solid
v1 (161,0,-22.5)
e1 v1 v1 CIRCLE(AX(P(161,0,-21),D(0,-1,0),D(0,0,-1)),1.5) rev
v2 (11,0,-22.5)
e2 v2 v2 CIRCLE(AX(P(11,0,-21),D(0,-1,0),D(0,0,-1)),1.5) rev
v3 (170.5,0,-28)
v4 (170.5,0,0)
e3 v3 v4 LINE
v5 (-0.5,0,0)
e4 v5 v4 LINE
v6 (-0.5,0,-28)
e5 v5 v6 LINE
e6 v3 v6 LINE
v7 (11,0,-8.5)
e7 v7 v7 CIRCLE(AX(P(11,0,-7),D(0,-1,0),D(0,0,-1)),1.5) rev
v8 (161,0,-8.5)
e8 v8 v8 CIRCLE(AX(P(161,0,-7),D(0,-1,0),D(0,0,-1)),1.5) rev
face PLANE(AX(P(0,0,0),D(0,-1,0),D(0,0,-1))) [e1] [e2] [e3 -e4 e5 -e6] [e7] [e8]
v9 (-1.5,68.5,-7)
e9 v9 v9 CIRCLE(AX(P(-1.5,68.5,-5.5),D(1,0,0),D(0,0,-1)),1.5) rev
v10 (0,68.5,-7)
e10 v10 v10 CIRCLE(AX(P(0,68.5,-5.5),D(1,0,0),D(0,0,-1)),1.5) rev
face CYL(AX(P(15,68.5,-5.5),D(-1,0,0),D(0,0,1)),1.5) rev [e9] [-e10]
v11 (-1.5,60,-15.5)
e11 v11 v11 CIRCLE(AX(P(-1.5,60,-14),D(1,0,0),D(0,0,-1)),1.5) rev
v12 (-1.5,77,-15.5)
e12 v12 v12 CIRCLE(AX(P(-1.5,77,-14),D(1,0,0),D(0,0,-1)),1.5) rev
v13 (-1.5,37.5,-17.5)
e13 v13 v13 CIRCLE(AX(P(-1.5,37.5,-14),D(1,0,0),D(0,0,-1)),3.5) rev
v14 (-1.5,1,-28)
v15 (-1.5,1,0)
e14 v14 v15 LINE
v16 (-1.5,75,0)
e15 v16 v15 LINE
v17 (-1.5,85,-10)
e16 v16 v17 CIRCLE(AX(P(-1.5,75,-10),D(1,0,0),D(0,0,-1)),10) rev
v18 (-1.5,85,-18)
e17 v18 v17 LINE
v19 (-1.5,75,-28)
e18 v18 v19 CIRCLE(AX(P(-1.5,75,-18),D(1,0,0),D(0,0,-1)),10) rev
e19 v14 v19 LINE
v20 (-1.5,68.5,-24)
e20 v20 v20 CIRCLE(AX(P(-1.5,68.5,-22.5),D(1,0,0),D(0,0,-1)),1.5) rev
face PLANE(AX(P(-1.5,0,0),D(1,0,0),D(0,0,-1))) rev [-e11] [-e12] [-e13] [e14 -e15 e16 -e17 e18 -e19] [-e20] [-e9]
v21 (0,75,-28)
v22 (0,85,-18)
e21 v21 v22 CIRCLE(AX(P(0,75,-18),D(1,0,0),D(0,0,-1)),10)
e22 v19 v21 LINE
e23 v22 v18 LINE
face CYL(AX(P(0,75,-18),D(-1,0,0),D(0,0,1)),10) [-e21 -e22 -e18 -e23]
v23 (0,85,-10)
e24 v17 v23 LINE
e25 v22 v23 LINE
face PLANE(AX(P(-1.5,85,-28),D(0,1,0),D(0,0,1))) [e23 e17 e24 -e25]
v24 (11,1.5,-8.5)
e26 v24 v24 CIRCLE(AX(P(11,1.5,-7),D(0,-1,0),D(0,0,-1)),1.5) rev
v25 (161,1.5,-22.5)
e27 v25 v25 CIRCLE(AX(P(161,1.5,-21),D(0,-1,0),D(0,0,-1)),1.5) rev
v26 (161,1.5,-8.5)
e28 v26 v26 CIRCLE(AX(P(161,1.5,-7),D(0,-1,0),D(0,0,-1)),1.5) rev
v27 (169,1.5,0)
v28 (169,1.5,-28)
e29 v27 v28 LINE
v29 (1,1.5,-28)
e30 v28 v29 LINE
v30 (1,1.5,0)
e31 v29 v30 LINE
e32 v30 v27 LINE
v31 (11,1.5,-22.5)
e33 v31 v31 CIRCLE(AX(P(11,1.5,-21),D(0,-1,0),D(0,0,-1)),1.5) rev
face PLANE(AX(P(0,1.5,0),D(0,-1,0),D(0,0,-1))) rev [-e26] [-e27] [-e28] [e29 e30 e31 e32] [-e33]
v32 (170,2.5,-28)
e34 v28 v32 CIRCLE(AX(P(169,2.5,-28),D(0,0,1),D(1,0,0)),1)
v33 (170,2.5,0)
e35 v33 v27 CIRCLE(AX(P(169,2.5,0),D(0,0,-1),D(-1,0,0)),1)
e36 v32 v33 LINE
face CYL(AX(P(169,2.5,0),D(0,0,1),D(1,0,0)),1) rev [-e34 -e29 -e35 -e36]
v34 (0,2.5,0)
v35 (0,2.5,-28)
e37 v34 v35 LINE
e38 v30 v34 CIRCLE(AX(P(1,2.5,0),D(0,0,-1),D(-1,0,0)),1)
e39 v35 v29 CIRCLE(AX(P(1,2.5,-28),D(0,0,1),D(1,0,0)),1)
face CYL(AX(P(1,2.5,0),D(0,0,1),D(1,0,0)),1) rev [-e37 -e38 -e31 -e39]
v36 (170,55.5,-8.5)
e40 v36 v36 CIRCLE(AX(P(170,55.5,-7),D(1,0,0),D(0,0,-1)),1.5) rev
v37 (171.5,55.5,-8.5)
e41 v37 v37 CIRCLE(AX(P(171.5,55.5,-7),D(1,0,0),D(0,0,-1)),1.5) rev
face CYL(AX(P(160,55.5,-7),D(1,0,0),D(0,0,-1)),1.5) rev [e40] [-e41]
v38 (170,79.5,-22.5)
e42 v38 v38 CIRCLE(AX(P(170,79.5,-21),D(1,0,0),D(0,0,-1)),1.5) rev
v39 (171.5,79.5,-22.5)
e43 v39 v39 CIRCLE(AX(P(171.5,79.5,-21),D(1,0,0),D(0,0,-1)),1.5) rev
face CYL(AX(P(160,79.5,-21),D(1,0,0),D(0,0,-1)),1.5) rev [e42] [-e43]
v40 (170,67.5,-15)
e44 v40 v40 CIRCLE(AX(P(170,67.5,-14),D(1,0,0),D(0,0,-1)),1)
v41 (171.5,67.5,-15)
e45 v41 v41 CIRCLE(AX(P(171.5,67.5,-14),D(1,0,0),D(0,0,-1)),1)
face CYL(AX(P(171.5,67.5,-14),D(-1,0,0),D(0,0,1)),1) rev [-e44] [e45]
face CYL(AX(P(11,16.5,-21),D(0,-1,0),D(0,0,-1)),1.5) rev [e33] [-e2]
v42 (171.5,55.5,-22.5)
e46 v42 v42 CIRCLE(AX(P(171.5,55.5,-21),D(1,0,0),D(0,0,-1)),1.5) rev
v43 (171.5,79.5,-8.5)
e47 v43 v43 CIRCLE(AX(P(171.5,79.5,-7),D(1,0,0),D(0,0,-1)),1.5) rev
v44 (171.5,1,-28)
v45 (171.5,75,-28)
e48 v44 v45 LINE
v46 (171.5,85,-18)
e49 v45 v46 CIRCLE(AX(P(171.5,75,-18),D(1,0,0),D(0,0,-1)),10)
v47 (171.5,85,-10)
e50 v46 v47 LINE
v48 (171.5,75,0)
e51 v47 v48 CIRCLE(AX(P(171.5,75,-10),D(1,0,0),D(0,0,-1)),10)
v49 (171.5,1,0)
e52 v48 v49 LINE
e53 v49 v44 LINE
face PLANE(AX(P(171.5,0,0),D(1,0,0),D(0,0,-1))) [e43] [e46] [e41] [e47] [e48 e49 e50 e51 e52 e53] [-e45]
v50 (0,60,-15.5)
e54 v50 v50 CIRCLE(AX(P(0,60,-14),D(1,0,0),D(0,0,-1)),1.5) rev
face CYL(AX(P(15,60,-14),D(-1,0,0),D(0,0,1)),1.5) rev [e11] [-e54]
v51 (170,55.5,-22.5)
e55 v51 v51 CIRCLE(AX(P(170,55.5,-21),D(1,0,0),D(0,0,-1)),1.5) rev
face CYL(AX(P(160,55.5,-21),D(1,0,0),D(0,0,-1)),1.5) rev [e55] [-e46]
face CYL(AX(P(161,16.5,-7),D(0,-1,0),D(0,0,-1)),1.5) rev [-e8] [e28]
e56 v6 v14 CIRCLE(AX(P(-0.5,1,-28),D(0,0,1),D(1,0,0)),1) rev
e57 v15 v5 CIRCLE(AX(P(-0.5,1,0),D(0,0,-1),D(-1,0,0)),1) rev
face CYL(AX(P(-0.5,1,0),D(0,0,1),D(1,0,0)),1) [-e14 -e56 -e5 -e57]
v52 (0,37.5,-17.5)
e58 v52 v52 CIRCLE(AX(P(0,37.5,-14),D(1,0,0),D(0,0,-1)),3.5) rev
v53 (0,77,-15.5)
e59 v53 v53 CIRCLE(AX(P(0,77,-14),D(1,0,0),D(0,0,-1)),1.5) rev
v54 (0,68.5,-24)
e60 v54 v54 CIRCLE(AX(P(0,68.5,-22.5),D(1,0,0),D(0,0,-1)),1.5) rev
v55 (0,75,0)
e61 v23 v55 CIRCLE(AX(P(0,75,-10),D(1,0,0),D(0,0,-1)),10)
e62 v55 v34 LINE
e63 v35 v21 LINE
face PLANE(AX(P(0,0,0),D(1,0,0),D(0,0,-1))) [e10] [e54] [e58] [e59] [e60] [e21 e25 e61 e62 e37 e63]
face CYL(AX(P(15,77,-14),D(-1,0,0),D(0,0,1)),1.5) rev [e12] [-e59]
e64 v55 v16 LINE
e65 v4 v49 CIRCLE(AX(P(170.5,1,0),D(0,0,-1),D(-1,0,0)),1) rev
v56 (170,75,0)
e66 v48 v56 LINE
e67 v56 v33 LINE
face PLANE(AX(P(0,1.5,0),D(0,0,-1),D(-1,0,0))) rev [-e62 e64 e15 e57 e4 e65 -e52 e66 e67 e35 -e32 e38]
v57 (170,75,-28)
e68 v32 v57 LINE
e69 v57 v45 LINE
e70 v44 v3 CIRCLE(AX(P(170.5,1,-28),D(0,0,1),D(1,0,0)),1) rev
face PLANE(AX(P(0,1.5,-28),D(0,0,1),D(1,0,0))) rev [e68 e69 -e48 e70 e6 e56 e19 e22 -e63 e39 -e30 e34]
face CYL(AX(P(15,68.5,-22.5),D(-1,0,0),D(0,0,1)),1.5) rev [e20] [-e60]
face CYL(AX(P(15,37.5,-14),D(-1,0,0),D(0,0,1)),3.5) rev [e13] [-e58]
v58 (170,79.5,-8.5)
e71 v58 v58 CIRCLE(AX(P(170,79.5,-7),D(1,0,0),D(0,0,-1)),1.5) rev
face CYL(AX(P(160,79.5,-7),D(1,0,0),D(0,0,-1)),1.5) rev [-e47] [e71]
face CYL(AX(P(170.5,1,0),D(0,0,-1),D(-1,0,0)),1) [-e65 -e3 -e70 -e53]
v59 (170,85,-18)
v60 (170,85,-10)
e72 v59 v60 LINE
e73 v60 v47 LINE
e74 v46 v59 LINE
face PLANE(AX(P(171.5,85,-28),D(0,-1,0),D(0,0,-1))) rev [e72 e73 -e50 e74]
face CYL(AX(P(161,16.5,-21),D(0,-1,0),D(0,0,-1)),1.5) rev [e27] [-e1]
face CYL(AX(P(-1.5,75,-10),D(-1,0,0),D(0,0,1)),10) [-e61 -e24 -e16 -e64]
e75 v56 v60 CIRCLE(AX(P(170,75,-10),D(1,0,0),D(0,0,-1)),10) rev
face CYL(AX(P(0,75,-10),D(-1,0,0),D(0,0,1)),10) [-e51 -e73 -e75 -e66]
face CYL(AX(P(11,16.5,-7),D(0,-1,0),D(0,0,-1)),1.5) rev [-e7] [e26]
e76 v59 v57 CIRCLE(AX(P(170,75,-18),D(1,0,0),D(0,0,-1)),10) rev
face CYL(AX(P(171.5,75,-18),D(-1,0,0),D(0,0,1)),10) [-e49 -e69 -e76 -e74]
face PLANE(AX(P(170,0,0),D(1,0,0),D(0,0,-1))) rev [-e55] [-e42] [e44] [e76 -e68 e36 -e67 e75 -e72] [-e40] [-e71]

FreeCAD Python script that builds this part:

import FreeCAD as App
import Part
import Sketcher
from FreeCAD import Vector


def edges_at(feature, points):
    """Names of the edges that pass closest to the given points."""
    edges = feature.Shape.Edges
    near = lambda p: min(range(len(edges)), key=lambda i: edges[i].distToShape(Part.Vertex(*p))[0])
    return sorted({f"Edge{near(p) + 1}" for p in points})


def add_polygon(sketch, points):
    """Adds a closed chain of lines whose ends are joined by coincident constraints."""
    first, n = sketch.GeometryCount, len(points)
    for a, b in zip(points, points[1:] + points[:1]):
        sketch.addGeometry(Part.LineSegment(App.Vector(*a, 0), App.Vector(*b, 0)), False)
    for i in range(n):
        sketch.addConstraint(Sketcher.Constraint("Coincident", first + i, 2, first + (i + 1) % n, 1))

doc = App.newDocument("Part")
body = doc.addObject("PartDesign::Body", "Body")

sketch1 = doc.addObject("Sketcher::SketchObject", "Sketch")
body.addObject(sketch1)
sketch1.AttachmentSupport = (doc.XZ_Plane, [""])
sketch1.MapMode = "FlatFace"
add_polygon(sketch1, [(0, -28), (0, 0), (170, 0), (170, -28)])
sketch1.addConstraint([
    Sketcher.Constraint("Vertical", 0),
    Sketcher.Constraint("Horizontal", 1),
    Sketcher.Constraint("Vertical", 2),
    Sketcher.Constraint("Horizontal", 3),
    Sketcher.Constraint("Coincident", 0, 2, -1, 1),
    Sketcher.Constraint("DistanceX", 1, 1, 1, 2, 170.0),
    Sketcher.Constraint("DistanceY", 0, 1, 0, 2, 28.0),
])
pad1 = doc.addObject("PartDesign::Pad", "Pad")
body.addObject(pad1)
pad1.Profile = sketch1
pad1.Length = 1.5
pad1.Reversed = True

sketch2 = doc.addObject("Sketcher::SketchObject", "Sketch001")
body.addObject(sketch2)
sketch2.AttachmentSupport = (doc.YZ_Plane, [""])
sketch2.MapMode = "FlatFace"
add_polygon(sketch2, [(85, 0), (0, 0), (0, -28), (85, -28)])
sketch2.addConstraint([
    Sketcher.Constraint("Horizontal", 0),
    Sketcher.Constraint("Vertical", 1),
    Sketcher.Constraint("Horizontal", 2),
    Sketcher.Constraint("Vertical", 3),
    Sketcher.Constraint("Coincident", 0, 2, -1, 1),
    Sketcher.Constraint("DistanceX", 0, 2, 0, 1, 85.0),
    Sketcher.Constraint("DistanceY", 1, 2, 1, 1, 28.0),
])
pad2 = doc.addObject("PartDesign::Pad", "Pad001")
body.addObject(pad2)
pad2.Profile = sketch2
pad2.Length = 1.5
pad2.Reversed = True
doc.recompute()

fillet = doc.addObject("PartDesign::Fillet", "Fillet")
body.addObject(fillet)
fillet.Base = (pad2, edges_at(pad2, [(-0.75, 85, -28), (-0.75, 85, 0)]))
fillet.Radius = 10
doc.recompute()

fillet2 = doc.addObject("PartDesign::Fillet", "Fillet001")
body.addObject(fillet2)
fillet2.Base = (fillet, edges_at(fillet, [(-1.5, 0, -14)]))
fillet2.Radius = 1
doc.recompute()

fillet3 = doc.addObject("PartDesign::Fillet", "Fillet002")
body.addObject(fillet3)
fillet3.Base = (fillet2, edges_at(fillet2, [(0, 1.5, -14)]))
fillet3.Radius = 1

sketch3 = doc.addObject("Sketcher::SketchObject", "Sketch002")
body.addObject(sketch3)
sketch3.AttachmentSupport = (doc.YZ_Plane, [""])
sketch3.MapMode = "FlatFace"
sketch3.addGeometry([
    Part.Circle(Vector(77, -14, 0), Vector(0, 0, 1), 1.5),
    Part.Circle(Vector(60, -14, 0), Vector(0, 0, 1), 1.5),
    Part.Circle(Vector(68.5, -22.5, 0), Vector(0, 0, 1), 1.5),
    Part.Circle(Vector(68.5, -5.5, 0), Vector(0, 0, 1), 1.5),
], False)
sketch3.addConstraint([
    Sketcher.Constraint("Equal", 0, 1),
    Sketcher.Constraint("Equal", 1, 2),
    Sketcher.Constraint("Equal", 2, 3),
    Sketcher.Constraint("Horizontal", 0, 3, 1, 3),
    Sketcher.Constraint("Vertical", 2, 3, 3, 3),
    Sketcher.Constraint("Diameter", 0, 3.0),
    Sketcher.Constraint("DistanceX", -1, 1, 0, 3, 77.0),
    Sketcher.Constraint("DistanceY", 0, 3, -1, 1, 14.0),
    Sketcher.Constraint("DistanceX", -1, 1, 1, 3, 60.0),
    Sketcher.Constraint("DistanceY", 2, 3, 3, 3, 17.0),
    Sketcher.Constraint("DistanceX", -1, 1, 2, 3, 68.5),
    Sketcher.Constraint("DistanceY", 2, 3, -1, 1, 22.5),
])
pocket1 = doc.addObject("PartDesign::Pocket", "Pocket")
body.addObject(pocket1)
pocket1.Profile = sketch3
pocket1.Type = "ThroughAll"
pocket1.Midplane = True

sketch4 = doc.addObject("Sketcher::SketchObject", "Sketch003")
body.addObject(sketch4)
sketch4.AttachmentSupport = (doc.YZ_Plane, [""])
sketch4.MapMode = "FlatFace"
sketch4.addGeometry(Part.Circle(Vector(37.5, -14, 0), Vector(0, 0, 1), 3.5), False)
sketch4.addConstraint([
    Sketcher.Constraint("Diameter", 0, 7.0),
    Sketcher.Constraint("DistanceY", 0, 3, -1, 1, 14.0),
    Sketcher.Constraint("DistanceX", -1, 1, 0, 3, 37.5),
])
pocket2 = doc.addObject("PartDesign::Pocket", "Pocket001")
body.addObject(pocket2)
pocket2.Profile = sketch4
pocket2.Type = "ThroughAll"
pocket2.Midplane = True

sketch5 = doc.addObject("Sketcher::SketchObject", "Sketch004")
body.addObject(sketch5)
sketch5.AttachmentSupport = (doc.XZ_Plane, [""])
sketch5.MapMode = "FlatFace"
sketch5.AttachmentOffset = App.Placement(Vector(0, 0, -1.5), App.Rotation())
sketch5.addGeometry([
    Part.Circle(Vector(161, -7, 0), Vector(0, 0, 1), 1.5),
    Part.Circle(Vector(11, -21, 0), Vector(0, 0, 1), 1.5),
    Part.Circle(Vector(11, -7, 0), Vector(0, 0, 1), 1.5),
    Part.Circle(Vector(161, -21, 0), Vector(0, 0, 1), 1.5),
], False)
sketch5.addConstraint([
    Sketcher.Constraint("Equal", 0, 1),
    Sketcher.Constraint("Equal", 1, 2),
    Sketcher.Constraint("Equal", 2, 3),
    Sketcher.Constraint("Horizontal", 0, 3, 2, 3),
    Sketcher.Constraint("Horizontal", 1, 3, 3, 3),
    Sketcher.Constraint("Vertical", 1, 3, 2, 3),
    Sketcher.Constraint("Vertical", 0, 3, 3, 3),
    Sketcher.Constraint("Diameter", 0, 3.0),
    Sketcher.Constraint("DistanceX", -1, 1, 0, 3, 161.0),
    Sketcher.Constraint("DistanceY", 0, 3, -1, 1, 7.0),
    Sketcher.Constraint("DistanceX", -1, 1, 1, 3, 11.0),
    Sketcher.Constraint("DistanceY", 1, 3, -1, 1, 21.0),
])
pocket3 = doc.addObject("PartDesign::Pocket", "Pocket002")
body.addObject(pocket3)
pocket3.Profile = sketch5
pocket3.Type = "ThroughAll"
pocket3.Midplane = True

sketch6 = doc.addObject("Sketcher::SketchObject", "Sketch005")
body.addObject(sketch6)
sketch6.AttachmentSupport = (doc.YZ_Plane, [""])
sketch6.MapMode = "FlatFace"
sketch6.AttachmentOffset = App.Placement(Vector(0, 0, 170), App.Rotation())
add_polygon(sketch6, [(85, 0), (0, 0), (0, -28), (85, -28)])
sketch6.addGeometry(Part.Circle(Vector(67.5, -14, 0), Vector(0, 0, 1), 1), False)
sketch6.addConstraint([
    Sketcher.Constraint("Horizontal", 0),
    Sketcher.Constraint("Vertical", 1),
    Sketcher.Constraint("Horizontal", 2),
    Sketcher.Constraint("Vertical", 3),
    Sketcher.Constraint("Coincident", 0, 2, -1, 1),
    Sketcher.Constraint("Diameter", 4, 2.0),
    Sketcher.Constraint("DistanceX", 0, 2, 0, 1, 85.0),
    Sketcher.Constraint("DistanceY", 1, 2, 1, 1, 28.0),
    Sketcher.Constraint("DistanceY", 4, 3, -1, 1, 14.0),
    Sketcher.Constraint("DistanceX", -1, 1, 4, 3, 67.5),
])
pad3 = doc.addObject("PartDesign::Pad", "Pad002")
body.addObject(pad3)
pad3.Profile = sketch6
pad3.Length = 1.5
doc.recompute()

fillet4 = doc.addObject("PartDesign::Fillet", "Fillet003")
body.addObject(fillet4)
fillet4.Base = (pad3, edges_at(pad3, [(170, 1.5, -14)]))
fillet4.Radius = 1
doc.recompute()

fillet5 = doc.addObject("PartDesign::Fillet", "Fillet004")
body.addObject(fillet5)
fillet5.Base = (fillet4, edges_at(fillet4, [(171.5, 0, -14)]))
fillet5.Radius = 1
doc.recompute()

fillet6 = doc.addObject("PartDesign::Fillet", "Fillet005")
body.addObject(fillet6)
fillet6.Base = (fillet5, edges_at(fillet5, [(170.75, 85, 0)]))
fillet6.Radius = 10
doc.recompute()

fillet7 = doc.addObject("PartDesign::Fillet", "Fillet006")
body.addObject(fillet7)
fillet7.Base = (fillet6, edges_at(fillet6, [(170.75, 85, -28)]))
fillet7.Radius = 10

sketch7 = doc.addObject("Sketcher::SketchObject", "Sketch006")
body.addObject(sketch7)
sketch7.AttachmentSupport = (doc.YZ_Plane, [""])
sketch7.MapMode = "FlatFace"
sketch7.AttachmentOffset = App.Placement(Vector(0, 0, 170), App.Rotation())
sketch7.addGeometry([
    Part.Circle(Vector(79.5, -21, 0), Vector(0, 0, 1), 1.5),
    Part.Circle(Vector(79.5, -7, 0), Vector(0, 0, 1), 1.5),
    Part.Circle(Vector(55.5, -7, 0), Vector(0, 0, 1), 1.5),
    Part.Circle(Vector(55.5, -21, 0), Vector(0, 0, 1), 1.5),
], False)
sketch7.addConstraint([
    Sketcher.Constraint("Equal", 0, 1),
    Sketcher.Constraint("Equal", 1, 2),
    Sketcher.Constraint("Equal", 2, 3),
    Sketcher.Constraint("Horizontal", 1, 3, 2, 3),
    Sketcher.Constraint("Horizontal", 0, 3, 3, 3),
    Sketcher.Constraint("Vertical", 0, 3, 1, 3),
    Sketcher.Constraint("Vertical", 2, 3, 3, 3),
    Sketcher.Constraint("Diameter", 0, 3.0),
    Sketcher.Constraint("DistanceY", 0, 3, -1, 1, 21.0),
    Sketcher.Constraint("DistanceY", 1, 3, -1, 1, 7.0),
    Sketcher.Constraint("DistanceX", 2, 3, 1, 3, 24.0),
    Sketcher.Constraint("DistanceX", -1, 1, 0, 3, 79.5),
])
pocket4 = doc.addObject("PartDesign::Pocket", "Pocket003")
body.addObject(pocket4)
pocket4.Profile = sketch7
pocket4.Type = "TwoLengths"
pocket4.Length = 10
pocket4.Length2 = 10

doc.recompute()
